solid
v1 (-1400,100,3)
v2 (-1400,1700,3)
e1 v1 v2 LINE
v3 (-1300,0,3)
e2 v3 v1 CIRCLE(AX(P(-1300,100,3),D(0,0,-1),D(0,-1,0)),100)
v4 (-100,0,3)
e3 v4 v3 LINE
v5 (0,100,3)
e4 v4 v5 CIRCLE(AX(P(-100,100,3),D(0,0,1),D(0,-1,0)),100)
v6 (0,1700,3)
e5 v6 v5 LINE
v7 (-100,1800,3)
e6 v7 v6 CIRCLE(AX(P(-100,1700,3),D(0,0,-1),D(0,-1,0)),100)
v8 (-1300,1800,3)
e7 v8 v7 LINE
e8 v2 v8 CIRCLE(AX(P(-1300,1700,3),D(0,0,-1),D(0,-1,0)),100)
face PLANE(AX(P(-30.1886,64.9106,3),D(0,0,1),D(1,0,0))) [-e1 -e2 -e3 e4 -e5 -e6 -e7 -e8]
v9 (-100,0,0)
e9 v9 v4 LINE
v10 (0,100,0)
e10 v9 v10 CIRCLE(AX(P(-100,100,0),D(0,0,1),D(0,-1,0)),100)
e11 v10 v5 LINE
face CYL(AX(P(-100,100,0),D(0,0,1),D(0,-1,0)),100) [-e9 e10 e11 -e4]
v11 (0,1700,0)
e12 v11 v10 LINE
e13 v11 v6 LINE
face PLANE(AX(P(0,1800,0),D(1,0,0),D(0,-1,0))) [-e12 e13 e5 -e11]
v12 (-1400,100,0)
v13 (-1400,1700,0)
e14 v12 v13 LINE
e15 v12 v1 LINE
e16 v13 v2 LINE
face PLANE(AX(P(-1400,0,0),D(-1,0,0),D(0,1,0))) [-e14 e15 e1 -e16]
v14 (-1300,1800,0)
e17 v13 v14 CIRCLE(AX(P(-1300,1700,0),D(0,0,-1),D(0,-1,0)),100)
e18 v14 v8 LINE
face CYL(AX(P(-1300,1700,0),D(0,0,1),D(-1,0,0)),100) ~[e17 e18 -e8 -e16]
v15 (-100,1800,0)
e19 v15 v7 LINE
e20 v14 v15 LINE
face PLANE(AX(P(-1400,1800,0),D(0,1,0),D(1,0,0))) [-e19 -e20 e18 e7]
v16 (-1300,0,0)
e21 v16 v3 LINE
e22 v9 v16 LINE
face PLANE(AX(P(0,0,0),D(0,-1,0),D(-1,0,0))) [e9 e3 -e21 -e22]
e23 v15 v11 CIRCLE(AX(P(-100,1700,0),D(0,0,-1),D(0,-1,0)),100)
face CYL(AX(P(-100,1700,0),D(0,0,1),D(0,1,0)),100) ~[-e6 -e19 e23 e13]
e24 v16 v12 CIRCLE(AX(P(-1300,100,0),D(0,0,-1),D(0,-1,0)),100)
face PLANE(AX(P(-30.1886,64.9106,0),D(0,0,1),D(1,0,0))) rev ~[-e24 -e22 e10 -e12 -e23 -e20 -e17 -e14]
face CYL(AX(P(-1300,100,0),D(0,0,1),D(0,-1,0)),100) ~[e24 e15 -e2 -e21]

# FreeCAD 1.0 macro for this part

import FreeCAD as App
import Part
import Sketcher


def edges_at(feature, points):
    """Names of the edges that pass closest to the given points."""
    edges = feature.Shape.Edges
    near = lambda p: min(range(len(edges)), key=lambda i: edges[i].distToShape(Part.Vertex(*p))[0])
    return sorted({f"Edge{near(p) + 1}" for p in points})

doc = App.newDocument("Part")
body = doc.addObject("PartDesign::Body", "Body")

# Sketch on XY plane
sketch1 = body.newObject("Sketcher::SketchObject", "Sketch")
sketch1.AttachmentSupport = (doc.getObject("XY_Plane"), [""])
sketch1.MapMode = "FlatFace"
sketch1.addGeometry(Part.LineSegment(App.Vector(-1400, 0, 0), App.Vector(0, 0, 0)), False)
sketch1.addGeometry(Part.LineSegment(App.Vector(0, 0, 0), App.Vector(0, 1800, 0)), False)
sketch1.addGeometry(Part.LineSegment(App.Vector(0, 1800, 0), App.Vector(-1400, 1800, 0)), False)
sketch1.addGeometry(Part.LineSegment(App.Vector(-1400, 1800, 0), App.Vector(-1400, 0, 0)), False)
sketch1.addConstraint(Sketcher.Constraint("Coincident", 0, 2, 1, 1))
sketch1.addConstraint(Sketcher.Constraint("Coincident", 1, 2, 2, 1))
sketch1.addConstraint(Sketcher.Constraint("Coincident", 2, 2, 3, 1))
sketch1.addConstraint(Sketcher.Constraint("Coincident", 3, 2, 0, 1))
sketch1.addConstraint(Sketcher.Constraint("Horizontal", 0))
sketch1.addConstraint(Sketcher.Constraint("Vertical", 1))
sketch1.addConstraint(Sketcher.Constraint("Horizontal", 2))
sketch1.addConstraint(Sketcher.Constraint("Vertical", 3))
sketch1.addConstraint(Sketcher.Constraint("Coincident", 0, 2, -1, 1))
sketch1.addConstraint(Sketcher.Constraint("DistanceX", 0, 1, 0, 2, 1400.0))
sketch1.addConstraint(Sketcher.Constraint("DistanceY", 1, 1, 1, 2, 1800.0))
pad1 = body.newObject("PartDesign::Pad", "Pad")
pad1.Profile = sketch1
pad1.Length = 3
doc.recompute()

fillet = body.newObject("PartDesign::Fillet", "Fillet")
fillet.Base = (pad1, edges_at(pad1, [
    (0, 0, 1.5),
    (-1400, 0, 1.5),
    (-1400, 1800, 1.5),
    (0, 1800, 1.5),
]))
fillet.Radius = 100

doc.recompute()
